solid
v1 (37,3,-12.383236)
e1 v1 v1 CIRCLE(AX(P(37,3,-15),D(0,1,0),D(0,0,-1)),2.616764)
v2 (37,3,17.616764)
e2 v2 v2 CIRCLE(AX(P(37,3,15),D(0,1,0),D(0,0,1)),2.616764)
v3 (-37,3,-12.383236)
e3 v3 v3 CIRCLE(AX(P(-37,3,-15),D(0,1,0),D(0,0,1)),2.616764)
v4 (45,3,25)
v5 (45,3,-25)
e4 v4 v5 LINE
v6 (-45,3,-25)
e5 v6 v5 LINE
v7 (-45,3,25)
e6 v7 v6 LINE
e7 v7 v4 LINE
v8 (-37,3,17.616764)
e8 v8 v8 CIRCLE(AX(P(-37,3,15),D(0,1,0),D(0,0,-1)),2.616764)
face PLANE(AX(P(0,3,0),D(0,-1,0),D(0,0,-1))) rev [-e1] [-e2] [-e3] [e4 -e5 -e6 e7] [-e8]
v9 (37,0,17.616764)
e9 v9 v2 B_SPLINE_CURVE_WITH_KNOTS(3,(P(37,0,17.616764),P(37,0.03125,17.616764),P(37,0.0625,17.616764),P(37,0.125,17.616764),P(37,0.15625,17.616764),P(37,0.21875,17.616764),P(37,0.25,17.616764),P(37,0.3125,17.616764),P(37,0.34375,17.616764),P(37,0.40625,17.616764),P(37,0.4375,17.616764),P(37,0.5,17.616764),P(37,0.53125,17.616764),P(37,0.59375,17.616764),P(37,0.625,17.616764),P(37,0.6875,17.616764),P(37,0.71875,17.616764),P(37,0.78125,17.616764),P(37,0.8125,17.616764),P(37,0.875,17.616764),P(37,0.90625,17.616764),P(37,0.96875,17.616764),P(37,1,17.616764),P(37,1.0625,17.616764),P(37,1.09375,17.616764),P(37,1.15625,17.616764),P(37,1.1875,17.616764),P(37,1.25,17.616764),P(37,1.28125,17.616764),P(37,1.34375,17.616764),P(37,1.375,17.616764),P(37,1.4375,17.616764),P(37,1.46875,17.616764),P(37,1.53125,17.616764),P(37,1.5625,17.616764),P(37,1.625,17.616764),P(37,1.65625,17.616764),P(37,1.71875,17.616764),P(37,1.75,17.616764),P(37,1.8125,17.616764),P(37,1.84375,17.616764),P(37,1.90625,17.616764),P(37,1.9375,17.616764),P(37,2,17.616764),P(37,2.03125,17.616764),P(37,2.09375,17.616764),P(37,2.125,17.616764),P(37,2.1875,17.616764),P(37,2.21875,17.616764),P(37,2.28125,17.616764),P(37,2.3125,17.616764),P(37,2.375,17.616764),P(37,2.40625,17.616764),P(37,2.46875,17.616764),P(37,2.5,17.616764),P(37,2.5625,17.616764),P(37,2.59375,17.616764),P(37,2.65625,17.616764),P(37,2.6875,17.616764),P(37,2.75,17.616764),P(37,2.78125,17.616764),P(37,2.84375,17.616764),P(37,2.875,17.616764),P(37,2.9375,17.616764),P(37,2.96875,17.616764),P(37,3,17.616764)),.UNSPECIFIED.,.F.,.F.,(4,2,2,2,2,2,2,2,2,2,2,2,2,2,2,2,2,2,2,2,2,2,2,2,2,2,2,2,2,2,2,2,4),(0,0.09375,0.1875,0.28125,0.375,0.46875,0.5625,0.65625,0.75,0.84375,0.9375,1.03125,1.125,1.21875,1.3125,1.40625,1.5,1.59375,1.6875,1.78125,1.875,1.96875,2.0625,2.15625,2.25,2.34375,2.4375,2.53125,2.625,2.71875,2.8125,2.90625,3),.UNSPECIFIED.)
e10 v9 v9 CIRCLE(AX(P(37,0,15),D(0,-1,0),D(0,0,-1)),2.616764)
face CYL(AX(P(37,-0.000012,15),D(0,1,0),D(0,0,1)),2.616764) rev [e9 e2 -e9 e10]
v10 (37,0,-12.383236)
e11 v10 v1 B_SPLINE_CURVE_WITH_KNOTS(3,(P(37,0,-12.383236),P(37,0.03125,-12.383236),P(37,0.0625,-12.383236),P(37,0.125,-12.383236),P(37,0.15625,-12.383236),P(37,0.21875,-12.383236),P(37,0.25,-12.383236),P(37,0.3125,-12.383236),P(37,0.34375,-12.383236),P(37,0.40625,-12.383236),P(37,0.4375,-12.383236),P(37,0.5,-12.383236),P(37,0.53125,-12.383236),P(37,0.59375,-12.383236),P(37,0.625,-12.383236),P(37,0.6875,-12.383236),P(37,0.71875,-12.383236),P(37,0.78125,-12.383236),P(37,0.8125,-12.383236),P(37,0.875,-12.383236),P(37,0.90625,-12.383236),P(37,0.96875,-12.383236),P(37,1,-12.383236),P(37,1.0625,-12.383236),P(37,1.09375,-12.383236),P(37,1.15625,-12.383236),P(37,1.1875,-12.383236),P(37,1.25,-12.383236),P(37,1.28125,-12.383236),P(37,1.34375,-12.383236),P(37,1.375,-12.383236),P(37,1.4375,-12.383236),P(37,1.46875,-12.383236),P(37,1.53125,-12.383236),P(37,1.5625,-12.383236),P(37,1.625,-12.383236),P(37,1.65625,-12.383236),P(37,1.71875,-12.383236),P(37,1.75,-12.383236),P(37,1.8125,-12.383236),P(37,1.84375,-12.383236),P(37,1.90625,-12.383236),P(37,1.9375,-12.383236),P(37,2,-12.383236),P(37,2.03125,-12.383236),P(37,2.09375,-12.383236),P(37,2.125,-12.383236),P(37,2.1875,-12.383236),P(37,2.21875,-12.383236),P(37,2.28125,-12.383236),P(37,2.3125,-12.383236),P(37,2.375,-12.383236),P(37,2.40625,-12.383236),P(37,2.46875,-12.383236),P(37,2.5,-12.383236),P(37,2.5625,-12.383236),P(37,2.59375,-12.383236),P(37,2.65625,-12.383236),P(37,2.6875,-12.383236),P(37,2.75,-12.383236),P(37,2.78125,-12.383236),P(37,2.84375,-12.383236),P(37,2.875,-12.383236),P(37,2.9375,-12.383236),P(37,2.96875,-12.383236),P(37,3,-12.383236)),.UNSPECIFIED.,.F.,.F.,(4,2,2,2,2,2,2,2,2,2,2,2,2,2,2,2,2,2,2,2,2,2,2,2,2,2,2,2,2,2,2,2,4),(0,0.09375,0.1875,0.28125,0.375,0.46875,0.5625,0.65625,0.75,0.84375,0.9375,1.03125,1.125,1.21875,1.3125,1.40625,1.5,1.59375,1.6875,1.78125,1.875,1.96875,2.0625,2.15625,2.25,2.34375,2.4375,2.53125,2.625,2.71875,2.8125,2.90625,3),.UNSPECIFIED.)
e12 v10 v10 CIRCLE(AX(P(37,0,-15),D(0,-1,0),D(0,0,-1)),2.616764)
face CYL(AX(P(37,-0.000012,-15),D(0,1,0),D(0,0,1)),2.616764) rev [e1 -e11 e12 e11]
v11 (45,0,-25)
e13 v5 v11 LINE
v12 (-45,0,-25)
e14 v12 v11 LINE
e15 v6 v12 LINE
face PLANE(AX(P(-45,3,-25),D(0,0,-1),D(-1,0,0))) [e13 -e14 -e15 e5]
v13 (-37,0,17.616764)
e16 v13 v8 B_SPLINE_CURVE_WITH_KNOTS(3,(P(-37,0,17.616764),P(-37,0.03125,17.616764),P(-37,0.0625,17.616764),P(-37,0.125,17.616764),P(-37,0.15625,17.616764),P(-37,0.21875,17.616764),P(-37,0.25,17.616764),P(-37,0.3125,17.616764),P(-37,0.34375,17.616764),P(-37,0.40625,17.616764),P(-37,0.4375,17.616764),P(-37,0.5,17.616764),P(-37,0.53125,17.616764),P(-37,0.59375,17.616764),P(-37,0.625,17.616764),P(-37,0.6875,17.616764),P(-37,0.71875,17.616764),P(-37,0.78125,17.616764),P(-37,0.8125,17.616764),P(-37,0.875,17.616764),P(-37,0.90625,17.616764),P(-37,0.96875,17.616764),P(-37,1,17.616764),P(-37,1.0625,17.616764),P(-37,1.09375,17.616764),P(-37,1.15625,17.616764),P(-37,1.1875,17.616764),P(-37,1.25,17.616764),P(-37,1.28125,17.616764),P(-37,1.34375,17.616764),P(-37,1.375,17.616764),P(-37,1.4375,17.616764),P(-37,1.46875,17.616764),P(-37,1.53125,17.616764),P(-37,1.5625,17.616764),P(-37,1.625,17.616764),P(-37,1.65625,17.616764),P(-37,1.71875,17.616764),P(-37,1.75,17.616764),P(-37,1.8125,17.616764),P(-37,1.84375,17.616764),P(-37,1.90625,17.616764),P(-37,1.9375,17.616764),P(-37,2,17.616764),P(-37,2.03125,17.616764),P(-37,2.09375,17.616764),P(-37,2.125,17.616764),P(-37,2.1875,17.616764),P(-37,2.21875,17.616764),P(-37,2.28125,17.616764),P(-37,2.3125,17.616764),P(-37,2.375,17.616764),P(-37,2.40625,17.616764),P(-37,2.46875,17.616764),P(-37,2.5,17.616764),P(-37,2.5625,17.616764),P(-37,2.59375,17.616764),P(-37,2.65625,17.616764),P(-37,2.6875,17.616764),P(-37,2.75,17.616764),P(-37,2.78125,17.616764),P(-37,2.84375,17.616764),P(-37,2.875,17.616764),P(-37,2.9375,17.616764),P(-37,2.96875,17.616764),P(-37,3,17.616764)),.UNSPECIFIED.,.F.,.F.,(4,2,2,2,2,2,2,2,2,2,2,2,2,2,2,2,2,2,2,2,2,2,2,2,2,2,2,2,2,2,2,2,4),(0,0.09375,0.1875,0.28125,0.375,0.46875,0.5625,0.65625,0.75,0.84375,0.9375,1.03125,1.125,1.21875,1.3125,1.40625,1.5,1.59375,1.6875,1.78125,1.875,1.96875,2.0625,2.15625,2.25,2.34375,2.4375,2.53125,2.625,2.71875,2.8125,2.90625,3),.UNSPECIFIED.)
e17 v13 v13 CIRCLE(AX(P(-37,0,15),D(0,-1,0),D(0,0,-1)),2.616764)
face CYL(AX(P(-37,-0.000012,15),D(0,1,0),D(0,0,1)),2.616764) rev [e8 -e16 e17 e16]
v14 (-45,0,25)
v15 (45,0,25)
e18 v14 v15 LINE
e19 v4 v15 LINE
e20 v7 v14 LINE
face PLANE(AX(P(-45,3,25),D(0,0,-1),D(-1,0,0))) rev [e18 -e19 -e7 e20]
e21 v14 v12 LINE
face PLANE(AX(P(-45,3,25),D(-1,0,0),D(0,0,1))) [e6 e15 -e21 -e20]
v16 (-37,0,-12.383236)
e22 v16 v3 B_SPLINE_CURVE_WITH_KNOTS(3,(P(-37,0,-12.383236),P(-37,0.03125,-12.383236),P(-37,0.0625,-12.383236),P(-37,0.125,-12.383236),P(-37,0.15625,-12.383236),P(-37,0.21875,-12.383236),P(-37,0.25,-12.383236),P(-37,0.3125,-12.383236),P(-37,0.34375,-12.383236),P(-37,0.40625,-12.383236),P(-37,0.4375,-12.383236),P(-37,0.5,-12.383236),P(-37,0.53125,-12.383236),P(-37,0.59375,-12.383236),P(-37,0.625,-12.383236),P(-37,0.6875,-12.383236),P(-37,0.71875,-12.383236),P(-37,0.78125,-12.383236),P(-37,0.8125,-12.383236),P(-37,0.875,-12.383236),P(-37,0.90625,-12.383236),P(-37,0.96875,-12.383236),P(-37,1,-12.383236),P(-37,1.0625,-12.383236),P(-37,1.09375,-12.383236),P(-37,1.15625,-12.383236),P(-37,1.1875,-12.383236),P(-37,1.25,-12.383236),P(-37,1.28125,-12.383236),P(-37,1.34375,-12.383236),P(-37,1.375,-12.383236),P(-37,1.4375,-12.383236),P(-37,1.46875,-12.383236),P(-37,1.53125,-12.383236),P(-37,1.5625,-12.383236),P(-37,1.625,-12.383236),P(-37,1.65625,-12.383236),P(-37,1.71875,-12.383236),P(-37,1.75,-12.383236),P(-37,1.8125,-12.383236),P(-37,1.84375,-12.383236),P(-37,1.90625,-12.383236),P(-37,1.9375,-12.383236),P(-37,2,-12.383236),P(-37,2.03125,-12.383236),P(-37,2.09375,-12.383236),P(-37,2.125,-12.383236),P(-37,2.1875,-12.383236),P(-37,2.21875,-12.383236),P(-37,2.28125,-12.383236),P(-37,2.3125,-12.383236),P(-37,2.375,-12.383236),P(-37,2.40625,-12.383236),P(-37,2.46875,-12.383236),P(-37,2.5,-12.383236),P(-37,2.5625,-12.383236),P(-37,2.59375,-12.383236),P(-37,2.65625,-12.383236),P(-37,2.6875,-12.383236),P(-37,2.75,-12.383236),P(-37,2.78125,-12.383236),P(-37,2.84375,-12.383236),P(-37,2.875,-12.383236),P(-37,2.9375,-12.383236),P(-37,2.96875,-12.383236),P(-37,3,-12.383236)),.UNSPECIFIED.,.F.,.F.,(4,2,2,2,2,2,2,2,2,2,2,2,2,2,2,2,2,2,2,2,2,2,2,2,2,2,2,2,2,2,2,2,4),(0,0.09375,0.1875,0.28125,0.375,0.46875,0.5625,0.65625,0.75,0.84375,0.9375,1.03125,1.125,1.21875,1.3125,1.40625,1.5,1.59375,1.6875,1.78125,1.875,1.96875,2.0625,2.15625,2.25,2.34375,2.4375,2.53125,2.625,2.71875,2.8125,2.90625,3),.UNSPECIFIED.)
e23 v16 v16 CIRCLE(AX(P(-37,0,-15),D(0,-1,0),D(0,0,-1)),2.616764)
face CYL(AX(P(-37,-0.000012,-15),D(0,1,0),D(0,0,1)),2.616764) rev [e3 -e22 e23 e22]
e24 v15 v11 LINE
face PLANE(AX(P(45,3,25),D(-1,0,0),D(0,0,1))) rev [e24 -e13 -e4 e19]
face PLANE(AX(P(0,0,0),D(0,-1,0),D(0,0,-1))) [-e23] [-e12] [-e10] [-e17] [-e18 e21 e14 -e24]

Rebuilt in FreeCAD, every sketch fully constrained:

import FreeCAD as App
import Part
import Sketcher

doc = App.newDocument("Part")
body = doc.addObject("PartDesign::Body", "Body")

# Sketch on XZ plane
sketch1 = doc.addObject("Sketcher::SketchObject", "Sketch")
body.addObject(sketch1)
sketch1.AttachmentSupport = (doc.XZ_Plane, [""])
sketch1.MapMode = "FlatFace"
sketch1.addGeometry(Part.LineSegment(App.Vector(-45, -25, 0), App.Vector(-45, 25, 0)), False)
sketch1.addGeometry(Part.LineSegment(App.Vector(-45, 25, 0), App.Vector(45, 25, 0)), False)
sketch1.addGeometry(Part.LineSegment(App.Vector(45, 25, 0), App.Vector(45, -25, 0)), False)
sketch1.addGeometry(Part.LineSegment(App.Vector(45, -25, 0), App.Vector(-45, -25, 0)), False)
sketch1.addConstraint(Sketcher.Constraint("Coincident", 0, 2, 1, 1))
sketch1.addConstraint(Sketcher.Constraint("Coincident", 1, 2, 2, 1))
sketch1.addConstraint(Sketcher.Constraint("Coincident", 2, 2, 3, 1))
sketch1.addConstraint(Sketcher.Constraint("Coincident", 3, 2, 0, 1))
sketch1.addConstraint(Sketcher.Constraint("Vertical", 0))
sketch1.addConstraint(Sketcher.Constraint("Horizontal", 1))
sketch1.addConstraint(Sketcher.Constraint("Vertical", 2))
sketch1.addConstraint(Sketcher.Constraint("Horizontal", 3))
sketch1.addConstraint(Sketcher.Constraint("Symmetric", 0, 2, 2, 2, -1, 1))
sketch1.addConstraint(Sketcher.Constraint("DistanceX", 1, 1, 1, 2, 90.0))
sketch1.addConstraint(Sketcher.Constraint("DistanceY", 0, 1, 0, 2, 50.0))
pad1 = doc.addObject("PartDesign::Pad", "Pad")
body.addObject(pad1)
pad1.Profile = sketch1
pad1.Length = 3
pad1.Reversed = True

# Sketch on XZ plane
sketch2 = doc.addObject("Sketcher::SketchObject", "Sketch001")
body.addObject(sketch2)
sketch2.AttachmentSupport = (doc.XZ_Plane, [""])
sketch2.MapMode = "FlatFace"
sketch2.addGeometry(Part.Circle(App.Vector(-37, -15, 0), App.Vector(0, 0, 1), 2.616764), False)
sketch2.addGeometry(Part.Circle(App.Vector(-37, 15, 0), App.Vector(0, 0, 1), 2.616764), False)
sketch2.addGeometry(Part.Circle(App.Vector(37, 15, 0), App.Vector(0, 0, 1), 2.616764), False)
sketch2.addGeometry(Part.Circle(App.Vector(37, -15, 0), App.Vector(0, 0, 1), 2.616764), False)
sketch2.addConstraint(Sketcher.Constraint("Equal", 0, 1))
sketch2.addConstraint(Sketcher.Constraint("Equal", 1, 2))
sketch2.addConstraint(Sketcher.Constraint("Equal", 2, 3))
sketch2.addConstraint(Sketcher.Constraint("Symmetric", 0, 3, 2, 3, -1, 1))
sketch2.addConstraint(Sketcher.Constraint("Symmetric", 1, 3, 3, 3, -1, 1))
sketch2.addConstraint(Sketcher.Constraint("Symmetric", 1, 3, 2, 3, -2))
sketch2.addConstraint(Sketcher.Constraint("DistanceX", 0, 3, -1, 1, 37.0))
sketch2.addConstraint(Sketcher.Constraint("DistanceY", 0, 3, -1, 1, 15.0))
sketch2.addConstraint(Sketcher.Constraint("Diameter", 0, 5.233528))
pocket1 = doc.addObject("PartDesign::Pocket", "Pocket")
body.addObject(pocket1)
pocket1.Profile = sketch2
pocket1.Type = "ThroughAll"
pocket1.Midplane = True

doc.recompute()
